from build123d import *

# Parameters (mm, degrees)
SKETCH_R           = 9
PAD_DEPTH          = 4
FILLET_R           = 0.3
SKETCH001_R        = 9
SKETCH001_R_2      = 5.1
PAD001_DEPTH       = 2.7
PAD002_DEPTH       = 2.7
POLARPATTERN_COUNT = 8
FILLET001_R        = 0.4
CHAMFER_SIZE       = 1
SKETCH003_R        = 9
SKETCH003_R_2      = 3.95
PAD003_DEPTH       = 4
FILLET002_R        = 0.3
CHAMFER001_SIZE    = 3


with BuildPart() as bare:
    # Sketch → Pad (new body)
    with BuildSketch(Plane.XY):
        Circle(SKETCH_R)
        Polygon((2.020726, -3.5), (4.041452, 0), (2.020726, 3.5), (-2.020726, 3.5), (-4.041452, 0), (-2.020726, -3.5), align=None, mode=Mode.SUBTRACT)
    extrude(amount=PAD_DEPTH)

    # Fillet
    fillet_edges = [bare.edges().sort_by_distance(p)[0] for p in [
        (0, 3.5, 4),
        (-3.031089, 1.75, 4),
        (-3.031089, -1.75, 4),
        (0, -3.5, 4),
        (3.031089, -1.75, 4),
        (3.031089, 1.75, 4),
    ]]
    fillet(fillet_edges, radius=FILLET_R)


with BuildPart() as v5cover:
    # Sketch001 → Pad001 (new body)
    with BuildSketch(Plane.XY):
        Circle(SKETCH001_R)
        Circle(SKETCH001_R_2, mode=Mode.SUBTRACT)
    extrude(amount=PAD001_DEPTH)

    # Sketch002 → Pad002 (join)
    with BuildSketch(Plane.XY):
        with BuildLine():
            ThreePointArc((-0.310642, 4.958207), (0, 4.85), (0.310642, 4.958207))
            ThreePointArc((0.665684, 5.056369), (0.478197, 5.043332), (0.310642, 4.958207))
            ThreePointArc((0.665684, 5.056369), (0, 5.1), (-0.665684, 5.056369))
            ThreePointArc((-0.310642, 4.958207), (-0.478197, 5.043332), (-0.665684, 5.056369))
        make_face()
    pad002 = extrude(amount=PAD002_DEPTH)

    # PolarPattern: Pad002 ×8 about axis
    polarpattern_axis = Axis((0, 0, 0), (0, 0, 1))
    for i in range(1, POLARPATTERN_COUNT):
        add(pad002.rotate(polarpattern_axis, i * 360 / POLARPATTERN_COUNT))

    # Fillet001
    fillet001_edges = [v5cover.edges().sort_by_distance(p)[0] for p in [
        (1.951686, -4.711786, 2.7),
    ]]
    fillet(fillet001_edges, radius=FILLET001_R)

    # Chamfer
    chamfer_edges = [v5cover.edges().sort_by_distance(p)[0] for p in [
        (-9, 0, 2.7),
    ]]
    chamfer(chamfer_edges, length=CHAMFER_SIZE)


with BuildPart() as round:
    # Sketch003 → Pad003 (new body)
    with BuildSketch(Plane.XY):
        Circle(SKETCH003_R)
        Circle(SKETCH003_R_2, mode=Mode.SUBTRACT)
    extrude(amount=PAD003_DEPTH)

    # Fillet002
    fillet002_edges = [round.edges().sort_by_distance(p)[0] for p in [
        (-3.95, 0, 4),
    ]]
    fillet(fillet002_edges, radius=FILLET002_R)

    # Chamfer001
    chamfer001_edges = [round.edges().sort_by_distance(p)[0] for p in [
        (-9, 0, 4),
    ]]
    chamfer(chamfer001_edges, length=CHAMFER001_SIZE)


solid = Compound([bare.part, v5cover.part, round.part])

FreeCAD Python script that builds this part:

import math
import FreeCAD as App
import Part
import Sketcher
Q = App.Units.Quantity


def edges_at(feature, points):
    """Names of the edges that pass closest to the given points."""
    edges = feature.Shape.Edges
    near = lambda p: min(range(len(edges)), key=lambda i: edges[i].distToShape(Part.Vertex(*p))[0])
    return sorted({f"Edge{near(p) + 1}" for p in points})

doc = App.newDocument("Part")
body = doc.addObject("PartDesign::Body", "Body")

# Sketch on XY plane
sketch1 = body.newObject("Sketcher::SketchObject", "Sketch")
sketch1.AttachmentSupport = (doc.getObject("XY_Plane"), [""])
sketch1.MapMode = "FlatFace"
sketch1.addGeometry([
    Part.Circle(App.Vector(0, 0, 0), App.Vector(0, 0, 1), 9),  # 0
    Part.LineSegment(App.Vector(4, 0, 0), App.Vector(2, -3.5, 0)),  # 1
    Part.LineSegment(App.Vector(2, -3.5, 0), App.Vector(-2, -3.5, 0)),  # 2
    Part.LineSegment(App.Vector(-2, -3.5, 0), App.Vector(-4, 0, 0)),  # 3
    Part.LineSegment(App.Vector(-4, 0, 0), App.Vector(-2, 3.5, 0)),  # 4
    Part.LineSegment(App.Vector(-2, 3.5, 0), App.Vector(2, 3.5, 0)),  # 5
    Part.LineSegment(App.Vector(2, 3.5, 0), App.Vector(4, 0, 0)),  # 6
], False)
sketch1.addConstraint([
    Sketcher.Constraint("Coincident", 1, 2, 2, 1),
    Sketcher.Constraint("Coincident", 2, 2, 3, 1),
    Sketcher.Constraint("Coincident", 3, 2, 4, 1),
    Sketcher.Constraint("Coincident", 4, 2, 5, 1),
    Sketcher.Constraint("Coincident", 5, 2, 6, 1),
    Sketcher.Constraint("Coincident", 6, 2, 1, 1),
    Sketcher.Constraint("Horizontal", 2),
    Sketcher.Constraint("Horizontal", 5),
    Sketcher.Constraint("Coincident", 0, 3, -1, 1),
    Sketcher.Constraint("Symmetric", 1, 2, 4, 2, -1, 1),
    Sketcher.Constraint("Symmetric", 3, 2, 6, 2, -1, 1),
    Sketcher.Constraint("PointOnObject", 3, 2, -1),
    Sketcher.Constraint("Parallel", 3, 6),
    Sketcher.Constraint("Vertical", 2, 2, 4, 2),
    Sketcher.Constraint("Diameter", 0, Q("18 mm")),
    Sketcher.Constraint("Angle", 1, Q("-120.000001 deg")),
    Sketcher.Constraint("DistanceY", 2, 2, 4, 2, Q("7 mm")),
    Sketcher.Constraint("DistanceX", 2, 2, 2, 1, Q("4.041452 mm")),
])
pad1 = body.newObject("PartDesign::Pad", "Pad")
pad1.Profile = sketch1
pad1.Length = 4
doc.recompute()

fillet = body.newObject("PartDesign::Fillet", "Fillet")
fillet.Base = (pad1, edges_at(pad1, [
    (0, 3.5, 4),
    (-3.031, 1.75, 4),
    (-3.031, -1.75, 4),
    (0, -3.5, 4),
    (3.031, -1.75, 4),
    (3.031, 1.75, 4),
]))
fillet.Radius = 0.3
body2 = doc.addObject("PartDesign::Body", "Body001")

# Sketch on XY plane
sketch2 = body2.newObject("Sketcher::SketchObject", "Sketch001")
sketch2.AttachmentSupport = (doc.getObject("XY_Plane001"), [""])
sketch2.MapMode = "FlatFace"
sketch2.addGeometry([
    Part.Circle(App.Vector(0, 0, 0), App.Vector(0, 0, 1), 9),
    Part.Circle(App.Vector(0, 0, 0), App.Vector(0, 0, 1), 5),
], False)
sketch2.addConstraint([
    Sketcher.Constraint("Coincident", 0, 3, -1, 1),
    Sketcher.Constraint("Coincident", 1, 3, -1, 1),
    Sketcher.Constraint("Diameter", 0, Q("18 mm")),
    Sketcher.Constraint("Diameter", 1, Q("10.2 mm")),
])
pad2 = body2.newObject("PartDesign::Pad", "Pad001")
pad2.Profile = sketch2
pad2.Length = 2.7

# Sketch on XY plane
sketch3 = body2.newObject("Sketcher::SketchObject", "Sketch002")
sketch3.AttachmentSupport = (doc.getObject("XY_Plane001"), [""])
sketch3.MapMode = "FlatFace"
sketch3.addGeometry([
    Part.ArcOfCircle(Part.Circle(App.Vector(0, 5.35, 0), App.Vector(0, 0, 1), 0.5), math.radians(-128), math.radians(-52)),
    Part.ArcOfCircle(Part.Circle(App.Vector(0.6, 4.59, 0), App.Vector(0, 0, 1), 0.47), math.radians(83), math.radians(128)),
    Part.ArcOfCircle(Part.Circle(App.Vector(0, 0, 0), App.Vector(0, 0, 1), 5.1), math.radians(82.5), math.radians(97.5)),
    Part.ArcOfCircle(Part.Circle(App.Vector(-0.6, 4.59, 0), App.Vector(0, 0, 1), 0.47), math.radians(52), math.radians(97)),
], False)
sketch3.addConstraint([
    Sketcher.Constraint("Tangent", 0, 2, 1, 2),
    Sketcher.Constraint("Coincident", 1, 1, 2, 1),
    Sketcher.Constraint("Coincident", 2, 2, 3, 2),
    Sketcher.Constraint("Tangent", 3, 1, 0, 1),
    Sketcher.Constraint("Equal", 1, 3),
    Sketcher.Constraint("Symmetric", 1, 3, 3, 3, -2),
    Sketcher.Constraint("Horizontal", 1, 1, 2, 2),
    Sketcher.Constraint("Radius", 0, Q("0.500001 mm")),
    Sketcher.Constraint("DistanceY", -1, 1, 0, 3, Q("5.350001 mm")),
    Sketcher.Constraint("Radius", 2, Q("5.10003 mm")),
    Sketcher.Constraint("Radius", 1, Q("0.472253 mm")),
    Sketcher.Constraint("DistanceY", 2, 3, 1, 1, Q("5.056399 mm")),
    Sketcher.Constraint("DistanceY", -1, 1, 1, 1, Q("5.056369 mm")),
])
pad3 = body2.newObject("PartDesign::Pad", "Pad002")
pad3.Profile = sketch3
pad3.Length = 2.7
doc.recompute()

polarpattern = body2.newObject("PartDesign::PolarPattern", "PolarPattern")
polarpattern.Originals = [pad3]
polarpattern.Axis = (doc.getObject("Z_Axis001"), [""])
polarpattern.Angle = 360
polarpattern.Occurrences = 8
body2.Tip = polarpattern
doc.recompute()

fillet2 = body2.newObject("PartDesign::Fillet", "Fillet001")
fillet2.Base = (polarpattern, edges_at(polarpattern, [(1.952, -4.712, 2.7)]))
fillet2.Radius = 0.4
doc.recompute()

chamfer = body2.newObject("PartDesign::Chamfer", "Chamfer")
chamfer.Base = (fillet2, edges_at(fillet2, [(-9, 0, 2.7)]))
chamfer.Size = 1
body3 = doc.addObject("PartDesign::Body", "Body002")

# Sketch on XY plane
sketch4 = body3.newObject("Sketcher::SketchObject", "Sketch003")
sketch4.AttachmentSupport = (doc.getObject("XY_Plane002"), [""])
sketch4.MapMode = "FlatFace"
sketch4.addGeometry([
    Part.Circle(App.Vector(0, 0, 0), App.Vector(0, 0, 1), 9),
    Part.Circle(App.Vector(0, 0, 0), App.Vector(0, 0, 1), 4),
], False)
sketch4.addConstraint([
    Sketcher.Constraint("Coincident", 0, 3, -1, 1),
    Sketcher.Constraint("Coincident", 1, 3, -1, 1),
    Sketcher.Constraint("Diameter", 0, Q("18 mm")),
    Sketcher.Constraint("Diameter", 1, Q("7.9 mm")),
])
pad4 = body3.newObject("PartDesign::Pad", "Pad003")
pad4.Profile = sketch4
pad4.Length = 4
doc.recompute()

fillet3 = body3.newObject("PartDesign::Fillet", "Fillet002")
fillet3.Base = (pad4, edges_at(pad4, [(-3.95, 0, 4)]))
fillet3.Radius = 0.3
doc.recompute()

chamfer2 = body3.newObject("PartDesign::Chamfer", "Chamfer001")
chamfer2.Base = (fillet3, edges_at(fillet3, [(-9, 0, 4)]))
chamfer2.Size = 3

doc.recompute()
